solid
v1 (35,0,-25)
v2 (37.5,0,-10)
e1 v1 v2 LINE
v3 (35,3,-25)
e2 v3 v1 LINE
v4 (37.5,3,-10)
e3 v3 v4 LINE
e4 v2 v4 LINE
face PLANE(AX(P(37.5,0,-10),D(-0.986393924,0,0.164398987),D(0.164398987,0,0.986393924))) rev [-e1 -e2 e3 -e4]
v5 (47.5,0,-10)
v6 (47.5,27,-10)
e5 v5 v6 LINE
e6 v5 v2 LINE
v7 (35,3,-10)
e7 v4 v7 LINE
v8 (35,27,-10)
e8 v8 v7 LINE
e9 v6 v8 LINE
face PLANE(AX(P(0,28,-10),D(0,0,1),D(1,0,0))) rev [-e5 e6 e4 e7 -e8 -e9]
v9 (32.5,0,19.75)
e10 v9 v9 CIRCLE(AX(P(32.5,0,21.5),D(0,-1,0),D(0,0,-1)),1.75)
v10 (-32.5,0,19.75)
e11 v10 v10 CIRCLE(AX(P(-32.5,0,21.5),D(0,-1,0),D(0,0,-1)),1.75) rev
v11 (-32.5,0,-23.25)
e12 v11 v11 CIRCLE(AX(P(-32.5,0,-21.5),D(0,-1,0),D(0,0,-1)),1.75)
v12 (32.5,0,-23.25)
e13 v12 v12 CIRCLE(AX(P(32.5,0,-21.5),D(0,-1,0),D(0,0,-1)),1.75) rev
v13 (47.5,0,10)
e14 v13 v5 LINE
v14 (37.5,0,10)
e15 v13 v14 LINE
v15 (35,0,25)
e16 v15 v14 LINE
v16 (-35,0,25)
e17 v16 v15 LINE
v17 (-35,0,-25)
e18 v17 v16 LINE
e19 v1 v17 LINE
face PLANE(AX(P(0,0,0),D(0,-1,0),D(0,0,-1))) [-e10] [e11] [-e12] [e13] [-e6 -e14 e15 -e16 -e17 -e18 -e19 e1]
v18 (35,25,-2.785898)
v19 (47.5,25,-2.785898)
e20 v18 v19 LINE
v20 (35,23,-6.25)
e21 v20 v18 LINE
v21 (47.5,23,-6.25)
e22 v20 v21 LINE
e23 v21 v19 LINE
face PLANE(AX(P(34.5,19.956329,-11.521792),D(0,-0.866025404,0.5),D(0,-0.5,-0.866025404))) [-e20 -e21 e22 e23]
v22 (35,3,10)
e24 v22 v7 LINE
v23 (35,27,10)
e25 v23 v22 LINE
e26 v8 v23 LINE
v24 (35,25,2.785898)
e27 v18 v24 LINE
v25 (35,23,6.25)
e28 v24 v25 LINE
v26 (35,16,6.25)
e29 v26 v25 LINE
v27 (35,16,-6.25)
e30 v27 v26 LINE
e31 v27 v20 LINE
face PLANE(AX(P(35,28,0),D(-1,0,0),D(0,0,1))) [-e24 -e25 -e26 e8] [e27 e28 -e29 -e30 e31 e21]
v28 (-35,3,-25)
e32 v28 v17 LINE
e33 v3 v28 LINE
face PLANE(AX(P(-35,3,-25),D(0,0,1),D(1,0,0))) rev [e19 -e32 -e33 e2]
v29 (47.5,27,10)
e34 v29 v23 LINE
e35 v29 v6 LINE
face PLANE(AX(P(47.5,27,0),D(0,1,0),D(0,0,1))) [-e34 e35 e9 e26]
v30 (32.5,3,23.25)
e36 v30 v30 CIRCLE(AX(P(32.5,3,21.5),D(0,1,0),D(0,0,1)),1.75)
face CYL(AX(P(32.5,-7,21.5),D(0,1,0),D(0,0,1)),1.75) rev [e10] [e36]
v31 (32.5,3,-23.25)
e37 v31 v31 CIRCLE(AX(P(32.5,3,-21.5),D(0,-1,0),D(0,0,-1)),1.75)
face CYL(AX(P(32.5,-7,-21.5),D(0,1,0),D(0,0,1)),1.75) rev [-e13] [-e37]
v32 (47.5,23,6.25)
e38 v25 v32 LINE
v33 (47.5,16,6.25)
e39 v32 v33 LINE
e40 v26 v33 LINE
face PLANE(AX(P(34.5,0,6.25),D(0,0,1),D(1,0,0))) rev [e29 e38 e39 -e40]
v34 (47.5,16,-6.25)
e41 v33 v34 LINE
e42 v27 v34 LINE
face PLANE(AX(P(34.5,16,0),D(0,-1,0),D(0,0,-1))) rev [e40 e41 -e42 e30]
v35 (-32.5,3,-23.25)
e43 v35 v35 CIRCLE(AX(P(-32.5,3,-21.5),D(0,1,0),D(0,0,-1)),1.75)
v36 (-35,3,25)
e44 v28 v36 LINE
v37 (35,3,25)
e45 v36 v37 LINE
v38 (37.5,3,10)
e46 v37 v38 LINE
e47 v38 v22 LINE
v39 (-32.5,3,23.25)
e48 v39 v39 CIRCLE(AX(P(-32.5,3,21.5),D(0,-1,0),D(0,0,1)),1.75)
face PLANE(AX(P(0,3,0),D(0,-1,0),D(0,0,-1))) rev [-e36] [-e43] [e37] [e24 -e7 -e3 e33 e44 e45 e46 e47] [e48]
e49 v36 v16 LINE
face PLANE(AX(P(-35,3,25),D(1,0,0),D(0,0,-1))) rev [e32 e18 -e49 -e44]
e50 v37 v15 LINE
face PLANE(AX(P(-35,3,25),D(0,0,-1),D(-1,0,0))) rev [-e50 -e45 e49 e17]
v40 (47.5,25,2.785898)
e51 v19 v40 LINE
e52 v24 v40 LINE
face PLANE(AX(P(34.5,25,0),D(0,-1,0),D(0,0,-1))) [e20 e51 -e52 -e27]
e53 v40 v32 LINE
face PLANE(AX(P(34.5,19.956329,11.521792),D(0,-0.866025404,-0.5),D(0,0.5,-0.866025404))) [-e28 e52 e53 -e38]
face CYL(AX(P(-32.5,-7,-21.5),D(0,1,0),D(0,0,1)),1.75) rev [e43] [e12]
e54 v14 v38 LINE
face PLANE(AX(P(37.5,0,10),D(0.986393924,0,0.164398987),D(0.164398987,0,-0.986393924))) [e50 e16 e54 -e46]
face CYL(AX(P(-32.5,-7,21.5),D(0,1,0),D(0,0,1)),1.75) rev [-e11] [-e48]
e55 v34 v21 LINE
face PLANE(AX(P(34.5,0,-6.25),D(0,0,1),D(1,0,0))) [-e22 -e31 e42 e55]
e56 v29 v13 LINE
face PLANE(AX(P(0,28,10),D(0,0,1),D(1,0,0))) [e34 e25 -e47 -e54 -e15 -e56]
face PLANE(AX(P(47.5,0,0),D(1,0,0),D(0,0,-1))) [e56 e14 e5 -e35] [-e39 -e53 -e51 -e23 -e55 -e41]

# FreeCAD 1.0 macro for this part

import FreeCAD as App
import Part
import Sketcher
from FreeCAD import Vector
Q = App.Units.Quantity


def add_polygon(sketch, points):
    """Adds a closed chain of lines whose ends are joined by coincident constraints."""
    first, n = sketch.GeometryCount, len(points)
    for a, b in zip(points, points[1:] + points[:1]):
        sketch.addGeometry(Part.LineSegment(App.Vector(*a, 0), App.Vector(*b, 0)), False)
    for i in range(n):
        sketch.addConstraint(Sketcher.Constraint("Coincident", first + i, 2, first + (i + 1) % n, 1))

doc = App.newDocument("Part")
body = doc.addObject("PartDesign::Body", "Body")

# Sketch on XZ plane
sketch1 = body.newObject("Sketcher::SketchObject", "Sketch")
sketch1.AttachmentSupport = (doc.getObject("XZ_Plane"), [""])
sketch1.MapMode = "FlatFace"
add_polygon(sketch1, [(-35, -25), (-35, 25), (35, 25), (35, -25)])  # lines 0-3
sketch1.addConstraint(Sketcher.Constraint("Vertical", 0))
sketch1.addConstraint(Sketcher.Constraint("Horizontal", 1))
sketch1.addConstraint(Sketcher.Constraint("Vertical", 2))
sketch1.addConstraint(Sketcher.Constraint("Horizontal", 3))
sketch1.addConstraint(Sketcher.Constraint("Symmetric", 0, 2, 2, 2, -1, 1))
sketch1.addConstraint(Sketcher.Constraint("DistanceX", 1, 1, 1, 2, Q("70 mm")))
sketch1.addConstraint(Sketcher.Constraint("DistanceY", 0, 1, 0, 2, Q("50 mm")))
pad1 = body.newObject("PartDesign::Pad", "Pad")
pad1.Profile = sketch1
pad1.Length = 3
pad1.Reversed = True

# Sketch on XZ plane
sketch2 = body.newObject("Sketcher::SketchObject", "Sketch001")
sketch2.AttachmentSupport = (doc.getObject("XZ_Plane"), [""])
sketch2.MapMode = "FlatFace"
sketch2.AttachmentOffset = App.Placement(Vector(0, 0, -3), App.Rotation())
sketch2.addGeometry(Part.Circle(Vector(32.5, 21.5, 0), Vector(0, 0, 1), 1.75), False)
sketch2.addConstraint(Sketcher.Constraint("Diameter", 0, Q("3.5 mm")))
sketch2.addConstraint(Sketcher.Constraint("DistanceX", -1, 1, 0, 3, Q("32.5 mm")))
sketch2.addConstraint(Sketcher.Constraint("DistanceY", -1, 1, 0, 3, Q("21.5 mm")))
pocket1 = body.newObject("PartDesign::Pocket", "Pocket")
pocket1.Profile = sketch2
pocket1.Length = 10
pocket1.Reversed = True
doc.recompute()

mirrored = body.newObject("PartDesign::Mirrored", "Mirrored")
mirrored.Originals = [pocket1]
mirrored.MirrorPlane = (doc.getObject("XY_Plane"), [""])
body.Tip = mirrored
doc.recompute()

mirrored2 = body.newObject("PartDesign::Mirrored", "Mirrored001")
mirrored2.Originals = [pocket1]
mirrored2.MirrorPlane = (doc.getObject("YZ_Plane"), [""])
body.Tip = mirrored2

# Sketch on XZ plane
sketch3 = body.newObject("Sketcher::SketchObject", "Sketch002")
sketch3.AttachmentSupport = (doc.getObject("XZ_Plane"), [""])
sketch3.MapMode = "FlatFace"
sketch3.AttachmentOffset = App.Placement(Vector(0, 0, -3), App.Rotation())
sketch3.addGeometry(Part.Circle(Vector(-32.5, -21.5, 0), Vector(0, 0, 1), 1.75), False)
sketch3.addConstraint(Sketcher.Constraint("Diameter", 0, Q("3.5 mm")))
sketch3.addConstraint(Sketcher.Constraint("DistanceX", 0, 3, -1, 1, Q("32.5 mm")))
sketch3.addConstraint(Sketcher.Constraint("DistanceY", 0, 3, -1, 1, Q("21.5 mm")))
pocket2 = body.newObject("PartDesign::Pocket", "Pocket001")
pocket2.Profile = sketch3
pocket2.Length = 10
pocket2.Reversed = True

# Sketch on XZ plane
sketch4 = body.newObject("Sketcher::SketchObject", "Sketch003")
sketch4.AttachmentSupport = (doc.getObject("XZ_Plane"), [""])
sketch4.MapMode = "FlatFace"
add_polygon(sketch4, [(35, 10), (37.5, 10), (37.5, -10), (35, -10)])  # lines 0-3
sketch4.addConstraint(Sketcher.Constraint("Horizontal", 0))
sketch4.addConstraint(Sketcher.Constraint("Vertical", 1))
sketch4.addConstraint(Sketcher.Constraint("Horizontal", 2))
sketch4.addConstraint(Sketcher.Constraint("Vertical", 3))
sketch4.addConstraint(Sketcher.Constraint("DistanceY", 1, 2, 1, 1, Q("20 mm")))
sketch4.addConstraint(Sketcher.Constraint("DistanceX", 0, 1, 0, 2, Q("2.5 mm")))
sketch4.addConstraint(Sketcher.Constraint("DistanceY", -1, 1, 0, 2, Q("10 mm")))
sketch4.addConstraint(Sketcher.Constraint("DistanceX", -1, 1, 2, 2, Q("35 mm")))
pad2 = body.newObject("PartDesign::Pad", "Pad001")
pad2.Profile = sketch4
pad2.Length = 28
pad2.Reversed = True

# Sketch on XZ plane
sketch5 = body.newObject("Sketcher::SketchObject", "Sketch004")
sketch5.AttachmentSupport = (doc.getObject("XZ_Plane"), [""])
sketch5.MapMode = "FlatFace"
sketch5.AttachmentOffset = App.Placement(Vector(0, 0, -3), App.Rotation())
add_polygon(sketch5, [(35, 10), (35, 25), (37.5, 10)])  # lines 0-2
sketch5.addConstraint(Sketcher.Constraint("Vertical", 0))
sketch5.addConstraint(Sketcher.Constraint("Horizontal", 2))
sketch5.addConstraint(Sketcher.Constraint("DistanceY", 0, 1, 0, 2, Q("15 mm")))
sketch5.addConstraint(Sketcher.Constraint("DistanceX", 2, 2, 2, 1, Q("2.5 mm")))
sketch5.addConstraint(Sketcher.Constraint("DistanceX", -1, 1, 0, 2, Q("35 mm")))
sketch5.addConstraint(Sketcher.Constraint("DistanceY", -1, 1, 0, 2, Q("25 mm")))
pad3 = body.newObject("PartDesign::Pad", "Pad002")
pad3.Profile = sketch5
pad3.Length = 3
doc.recompute()

mirrored3 = body.newObject("PartDesign::Mirrored", "Mirrored002")
mirrored3.Originals = [pad3]
mirrored3.MirrorPlane = (doc.getObject("XY_Plane"), [""])
body.Tip = mirrored3

# Sketch on YZ plane
sketch6 = body.newObject("Sketcher::SketchObject", "Sketch005")
sketch6.AttachmentSupport = (doc.getObject("YZ_Plane"), [""])
sketch6.MapMode = "FlatFace"
sketch6.AttachmentOffset = App.Placement(Vector(0, 0, 37.5), App.Rotation())
add_polygon(sketch6, [(25, 2.785898), (23, 6.25), (16, 6.25), (16, -6.25), (23, -6.25), (25, -2.785898)])  # lines 0-5
sketch6.addConstraint(Sketcher.Constraint("Horizontal", 1))
sketch6.addConstraint(Sketcher.Constraint("Vertical", 2))
sketch6.addConstraint(Sketcher.Constraint("Horizontal", 3))
sketch6.addConstraint(Sketcher.Constraint("Vertical", 5))
sketch6.addConstraint(Sketcher.Constraint("Symmetric", 0, 2, 3, 2, -1))
sketch6.addConstraint(Sketcher.Constraint("Equal", 0, 4))
sketch6.addConstraint(Sketcher.Constraint("DistanceX", 1, 2, 1, 1, Q("7 mm")))
sketch6.addConstraint(Sketcher.Constraint("Angle", 0, Q("120 deg")))
sketch6.addConstraint(Sketcher.Constraint("Distance", 0, Q("4 mm")))
sketch6.addConstraint(Sketcher.Constraint("DistanceY", 2, 2, 2, 1, Q("12.5 mm")))
sketch6.addConstraint(Sketcher.Constraint("DistanceX", -1, 1, 0, 2, Q("23 mm")))
pocket3 = body.newObject("PartDesign::Pocket", "Pocket002")
pocket3.Profile = sketch6
pocket3.Length = 3

# Sketch on YZ plane
sketch7 = body.newObject("Sketcher::SketchObject", "Sketch006")
sketch7.AttachmentSupport = (doc.getObject("YZ_Plane"), [""])
sketch7.MapMode = "FlatFace"
sketch7.AttachmentOffset = App.Placement(Vector(0, 0, 37.5), App.Rotation())
add_polygon(sketch7, [(15.5, 6.75), (15.5, -6.75), (23.288675, -6.75), (25.5, -2.919873), (25.5, 2.919873), (23.288675, 6.75)])  # lines 0-5
add_polygon(sketch7, [(16, 6.25), (23, 6.25), (25, 2.785898), (25, -2.785898), (23, -6.25), (16, -6.25)])  # lines 6-11
sketch7.addConstraint(Sketcher.Constraint("Vertical", 0))
sketch7.addConstraint(Sketcher.Constraint("Horizontal", 1))
sketch7.addConstraint(Sketcher.Constraint("Vertical", 3))
sketch7.addConstraint(Sketcher.Constraint("Horizontal", 5))
sketch7.addConstraint(Sketcher.Constraint("Horizontal", 6))
sketch7.addConstraint(Sketcher.Constraint("Vertical", 8))
sketch7.addConstraint(Sketcher.Constraint("Horizontal", 10))
sketch7.addConstraint(Sketcher.Constraint("Vertical", 11))
sketch7.addConstraint(Sketcher.Constraint("Symmetric", 1, 2, 4, 2, -1))
sketch7.addConstraint(Sketcher.Constraint("Symmetric", 6, 2, 9, 2, -1))
sketch7.addConstraint(Sketcher.Constraint("Parallel", 4, 7))
sketch7.addConstraint(Sketcher.Constraint("Parallel", 2, 9))
sketch7.addConstraint(Sketcher.Constraint("Equal", 2, 4))
sketch7.addConstraint(Sketcher.Constraint("DistanceX", 6, 1, 6, 2, Q("7 mm")))
sketch7.addConstraint(Sketcher.Constraint("Angle", 2, Q("60 deg")))
sketch7.addConstraint(Sketcher.Constraint("Distance", 7, Q("4 mm")))
sketch7.addConstraint(Sketcher.Constraint("DistanceY", 0, 2, 0, 1, Q("13.5 mm")))
sketch7.addConstraint(Sketcher.Constraint("DistanceY", 11, 1, 11, 2, Q("12.5 mm")))
sketch7.addConstraint(Sketcher.Constraint("DistanceX", -1, 1, 6, 2, Q("23 mm")))
sketch7.addConstraint(Sketcher.Constraint("DistanceX", 0, 2, 2, 2, Q("10 mm")))
sketch7.addConstraint(Sketcher.Constraint("DistanceX", -1, 1, 0, 2, Q("15.5 mm")))
sketch7.addConstraint(Sketcher.Constraint("Distance", 2, Q("4.42265 mm")))
pad4 = body.newObject("PartDesign::Pad", "Pad003")
pad4.Profile = sketch7
pad4.Length = 10

# Sketch on YZ plane
sketch8 = body.newObject("Sketcher::SketchObject", "Sketch007")
sketch8.AttachmentSupport = (doc.getObject("YZ_Plane"), [""])
sketch8.MapMode = "FlatFace"
sketch8.AttachmentOffset = App.Placement(Vector(0, 0, 37.5), App.Rotation())
add_polygon(sketch8, [(27, -10), (27, 10), (0, 10), (0, -10)])  # lines 0-3
add_polygon(sketch8, [(15.5, -6.75), (15.5, 6.75), (23.288675, 6.75), (25.5, 2.919873), (25.5, -2.919873), (23.288675, -6.75)])  # lines 4-9
sketch8.addConstraint(Sketcher.Constraint("Vertical", 0))
sketch8.addConstraint(Sketcher.Constraint("Horizontal", 1))
sketch8.addConstraint(Sketcher.Constraint("Vertical", 2))
sketch8.addConstraint(Sketcher.Constraint("Horizontal", 3))
sketch8.addConstraint(Sketcher.Constraint("Vertical", 4))
sketch8.addConstraint(Sketcher.Constraint("Horizontal", 5))
sketch8.addConstraint(Sketcher.Constraint("Vertical", 7))
sketch8.addConstraint(Sketcher.Constraint("Horizontal", 9))
sketch8.addConstraint(Sketcher.Constraint("Symmetric", 1, 2, 2, 2, -1, 1))
sketch8.addConstraint(Sketcher.Constraint("Symmetric", 5, 2, 8, 2, -1))
sketch8.addConstraint(Sketcher.Constraint("Equal", 6, 8))
sketch8.addConstraint(Sketcher.Constraint("DistanceX", 1, 2, 1, 1, Q("27 mm")))
sketch8.addConstraint(Sketcher.Constraint("DistanceY", 0, 1, 0, 2, Q("20 mm")))
sketch8.addConstraint(Sketcher.Constraint("Angle", 6, Q("-60 deg")))
sketch8.addConstraint(Sketcher.Constraint("DistanceY", 4, 1, 4, 2, Q("13.5 mm")))
sketch8.addConstraint(Sketcher.Constraint("DistanceX", 4, 2, 6, 2, Q("10 mm")))
sketch8.addConstraint(Sketcher.Constraint("DistanceX", -1, 1, 4, 2, Q("15.5 mm")))
sketch8.addConstraint(Sketcher.Constraint("Distance", 6, Q("4.42265 mm")))
pad5 = body.newObject("PartDesign::Pad", "Pad004")
pad5.Profile = sketch8
pad5.Length = 10

# Sketch on YZ plane
sketch9 = body.newObject("Sketcher::SketchObject", "Sketch008")
sketch9.AttachmentSupport = (doc.getObject("YZ_Plane"), [""])
sketch9.MapMode = "FlatFace"
sketch9.AttachmentOffset = App.Placement(Vector(0, 0, 37.5), App.Rotation())
add_polygon(sketch9, [(28, 10), (27, 10), (27, -10), (28, -10)])  # lines 0-3
sketch9.addConstraint(Sketcher.Constraint("Horizontal", 0))
sketch9.addConstraint(Sketcher.Constraint("Vertical", 1))
sketch9.addConstraint(Sketcher.Constraint("Horizontal", 2))
sketch9.addConstraint(Sketcher.Constraint("Vertical", 3))
sketch9.addConstraint(Sketcher.Constraint("DistanceX", 0, 2, 0, 1, Q("1 mm")))
sketch9.addConstraint(Sketcher.Constraint("DistanceY", 1, 2, 1, 1, Q("20 mm")))
sketch9.addConstraint(Sketcher.Constraint("DistanceX", -1, 1, 0, 2, Q("27 mm")))
sketch9.addConstraint(Sketcher.Constraint("DistanceY", -1, 1, 0, 2, Q("10 mm")))
pocket4 = body.newObject("PartDesign::Pocket", "Pocket003")
pocket4.Profile = sketch9
pocket4.Length = 10

doc.recompute()
